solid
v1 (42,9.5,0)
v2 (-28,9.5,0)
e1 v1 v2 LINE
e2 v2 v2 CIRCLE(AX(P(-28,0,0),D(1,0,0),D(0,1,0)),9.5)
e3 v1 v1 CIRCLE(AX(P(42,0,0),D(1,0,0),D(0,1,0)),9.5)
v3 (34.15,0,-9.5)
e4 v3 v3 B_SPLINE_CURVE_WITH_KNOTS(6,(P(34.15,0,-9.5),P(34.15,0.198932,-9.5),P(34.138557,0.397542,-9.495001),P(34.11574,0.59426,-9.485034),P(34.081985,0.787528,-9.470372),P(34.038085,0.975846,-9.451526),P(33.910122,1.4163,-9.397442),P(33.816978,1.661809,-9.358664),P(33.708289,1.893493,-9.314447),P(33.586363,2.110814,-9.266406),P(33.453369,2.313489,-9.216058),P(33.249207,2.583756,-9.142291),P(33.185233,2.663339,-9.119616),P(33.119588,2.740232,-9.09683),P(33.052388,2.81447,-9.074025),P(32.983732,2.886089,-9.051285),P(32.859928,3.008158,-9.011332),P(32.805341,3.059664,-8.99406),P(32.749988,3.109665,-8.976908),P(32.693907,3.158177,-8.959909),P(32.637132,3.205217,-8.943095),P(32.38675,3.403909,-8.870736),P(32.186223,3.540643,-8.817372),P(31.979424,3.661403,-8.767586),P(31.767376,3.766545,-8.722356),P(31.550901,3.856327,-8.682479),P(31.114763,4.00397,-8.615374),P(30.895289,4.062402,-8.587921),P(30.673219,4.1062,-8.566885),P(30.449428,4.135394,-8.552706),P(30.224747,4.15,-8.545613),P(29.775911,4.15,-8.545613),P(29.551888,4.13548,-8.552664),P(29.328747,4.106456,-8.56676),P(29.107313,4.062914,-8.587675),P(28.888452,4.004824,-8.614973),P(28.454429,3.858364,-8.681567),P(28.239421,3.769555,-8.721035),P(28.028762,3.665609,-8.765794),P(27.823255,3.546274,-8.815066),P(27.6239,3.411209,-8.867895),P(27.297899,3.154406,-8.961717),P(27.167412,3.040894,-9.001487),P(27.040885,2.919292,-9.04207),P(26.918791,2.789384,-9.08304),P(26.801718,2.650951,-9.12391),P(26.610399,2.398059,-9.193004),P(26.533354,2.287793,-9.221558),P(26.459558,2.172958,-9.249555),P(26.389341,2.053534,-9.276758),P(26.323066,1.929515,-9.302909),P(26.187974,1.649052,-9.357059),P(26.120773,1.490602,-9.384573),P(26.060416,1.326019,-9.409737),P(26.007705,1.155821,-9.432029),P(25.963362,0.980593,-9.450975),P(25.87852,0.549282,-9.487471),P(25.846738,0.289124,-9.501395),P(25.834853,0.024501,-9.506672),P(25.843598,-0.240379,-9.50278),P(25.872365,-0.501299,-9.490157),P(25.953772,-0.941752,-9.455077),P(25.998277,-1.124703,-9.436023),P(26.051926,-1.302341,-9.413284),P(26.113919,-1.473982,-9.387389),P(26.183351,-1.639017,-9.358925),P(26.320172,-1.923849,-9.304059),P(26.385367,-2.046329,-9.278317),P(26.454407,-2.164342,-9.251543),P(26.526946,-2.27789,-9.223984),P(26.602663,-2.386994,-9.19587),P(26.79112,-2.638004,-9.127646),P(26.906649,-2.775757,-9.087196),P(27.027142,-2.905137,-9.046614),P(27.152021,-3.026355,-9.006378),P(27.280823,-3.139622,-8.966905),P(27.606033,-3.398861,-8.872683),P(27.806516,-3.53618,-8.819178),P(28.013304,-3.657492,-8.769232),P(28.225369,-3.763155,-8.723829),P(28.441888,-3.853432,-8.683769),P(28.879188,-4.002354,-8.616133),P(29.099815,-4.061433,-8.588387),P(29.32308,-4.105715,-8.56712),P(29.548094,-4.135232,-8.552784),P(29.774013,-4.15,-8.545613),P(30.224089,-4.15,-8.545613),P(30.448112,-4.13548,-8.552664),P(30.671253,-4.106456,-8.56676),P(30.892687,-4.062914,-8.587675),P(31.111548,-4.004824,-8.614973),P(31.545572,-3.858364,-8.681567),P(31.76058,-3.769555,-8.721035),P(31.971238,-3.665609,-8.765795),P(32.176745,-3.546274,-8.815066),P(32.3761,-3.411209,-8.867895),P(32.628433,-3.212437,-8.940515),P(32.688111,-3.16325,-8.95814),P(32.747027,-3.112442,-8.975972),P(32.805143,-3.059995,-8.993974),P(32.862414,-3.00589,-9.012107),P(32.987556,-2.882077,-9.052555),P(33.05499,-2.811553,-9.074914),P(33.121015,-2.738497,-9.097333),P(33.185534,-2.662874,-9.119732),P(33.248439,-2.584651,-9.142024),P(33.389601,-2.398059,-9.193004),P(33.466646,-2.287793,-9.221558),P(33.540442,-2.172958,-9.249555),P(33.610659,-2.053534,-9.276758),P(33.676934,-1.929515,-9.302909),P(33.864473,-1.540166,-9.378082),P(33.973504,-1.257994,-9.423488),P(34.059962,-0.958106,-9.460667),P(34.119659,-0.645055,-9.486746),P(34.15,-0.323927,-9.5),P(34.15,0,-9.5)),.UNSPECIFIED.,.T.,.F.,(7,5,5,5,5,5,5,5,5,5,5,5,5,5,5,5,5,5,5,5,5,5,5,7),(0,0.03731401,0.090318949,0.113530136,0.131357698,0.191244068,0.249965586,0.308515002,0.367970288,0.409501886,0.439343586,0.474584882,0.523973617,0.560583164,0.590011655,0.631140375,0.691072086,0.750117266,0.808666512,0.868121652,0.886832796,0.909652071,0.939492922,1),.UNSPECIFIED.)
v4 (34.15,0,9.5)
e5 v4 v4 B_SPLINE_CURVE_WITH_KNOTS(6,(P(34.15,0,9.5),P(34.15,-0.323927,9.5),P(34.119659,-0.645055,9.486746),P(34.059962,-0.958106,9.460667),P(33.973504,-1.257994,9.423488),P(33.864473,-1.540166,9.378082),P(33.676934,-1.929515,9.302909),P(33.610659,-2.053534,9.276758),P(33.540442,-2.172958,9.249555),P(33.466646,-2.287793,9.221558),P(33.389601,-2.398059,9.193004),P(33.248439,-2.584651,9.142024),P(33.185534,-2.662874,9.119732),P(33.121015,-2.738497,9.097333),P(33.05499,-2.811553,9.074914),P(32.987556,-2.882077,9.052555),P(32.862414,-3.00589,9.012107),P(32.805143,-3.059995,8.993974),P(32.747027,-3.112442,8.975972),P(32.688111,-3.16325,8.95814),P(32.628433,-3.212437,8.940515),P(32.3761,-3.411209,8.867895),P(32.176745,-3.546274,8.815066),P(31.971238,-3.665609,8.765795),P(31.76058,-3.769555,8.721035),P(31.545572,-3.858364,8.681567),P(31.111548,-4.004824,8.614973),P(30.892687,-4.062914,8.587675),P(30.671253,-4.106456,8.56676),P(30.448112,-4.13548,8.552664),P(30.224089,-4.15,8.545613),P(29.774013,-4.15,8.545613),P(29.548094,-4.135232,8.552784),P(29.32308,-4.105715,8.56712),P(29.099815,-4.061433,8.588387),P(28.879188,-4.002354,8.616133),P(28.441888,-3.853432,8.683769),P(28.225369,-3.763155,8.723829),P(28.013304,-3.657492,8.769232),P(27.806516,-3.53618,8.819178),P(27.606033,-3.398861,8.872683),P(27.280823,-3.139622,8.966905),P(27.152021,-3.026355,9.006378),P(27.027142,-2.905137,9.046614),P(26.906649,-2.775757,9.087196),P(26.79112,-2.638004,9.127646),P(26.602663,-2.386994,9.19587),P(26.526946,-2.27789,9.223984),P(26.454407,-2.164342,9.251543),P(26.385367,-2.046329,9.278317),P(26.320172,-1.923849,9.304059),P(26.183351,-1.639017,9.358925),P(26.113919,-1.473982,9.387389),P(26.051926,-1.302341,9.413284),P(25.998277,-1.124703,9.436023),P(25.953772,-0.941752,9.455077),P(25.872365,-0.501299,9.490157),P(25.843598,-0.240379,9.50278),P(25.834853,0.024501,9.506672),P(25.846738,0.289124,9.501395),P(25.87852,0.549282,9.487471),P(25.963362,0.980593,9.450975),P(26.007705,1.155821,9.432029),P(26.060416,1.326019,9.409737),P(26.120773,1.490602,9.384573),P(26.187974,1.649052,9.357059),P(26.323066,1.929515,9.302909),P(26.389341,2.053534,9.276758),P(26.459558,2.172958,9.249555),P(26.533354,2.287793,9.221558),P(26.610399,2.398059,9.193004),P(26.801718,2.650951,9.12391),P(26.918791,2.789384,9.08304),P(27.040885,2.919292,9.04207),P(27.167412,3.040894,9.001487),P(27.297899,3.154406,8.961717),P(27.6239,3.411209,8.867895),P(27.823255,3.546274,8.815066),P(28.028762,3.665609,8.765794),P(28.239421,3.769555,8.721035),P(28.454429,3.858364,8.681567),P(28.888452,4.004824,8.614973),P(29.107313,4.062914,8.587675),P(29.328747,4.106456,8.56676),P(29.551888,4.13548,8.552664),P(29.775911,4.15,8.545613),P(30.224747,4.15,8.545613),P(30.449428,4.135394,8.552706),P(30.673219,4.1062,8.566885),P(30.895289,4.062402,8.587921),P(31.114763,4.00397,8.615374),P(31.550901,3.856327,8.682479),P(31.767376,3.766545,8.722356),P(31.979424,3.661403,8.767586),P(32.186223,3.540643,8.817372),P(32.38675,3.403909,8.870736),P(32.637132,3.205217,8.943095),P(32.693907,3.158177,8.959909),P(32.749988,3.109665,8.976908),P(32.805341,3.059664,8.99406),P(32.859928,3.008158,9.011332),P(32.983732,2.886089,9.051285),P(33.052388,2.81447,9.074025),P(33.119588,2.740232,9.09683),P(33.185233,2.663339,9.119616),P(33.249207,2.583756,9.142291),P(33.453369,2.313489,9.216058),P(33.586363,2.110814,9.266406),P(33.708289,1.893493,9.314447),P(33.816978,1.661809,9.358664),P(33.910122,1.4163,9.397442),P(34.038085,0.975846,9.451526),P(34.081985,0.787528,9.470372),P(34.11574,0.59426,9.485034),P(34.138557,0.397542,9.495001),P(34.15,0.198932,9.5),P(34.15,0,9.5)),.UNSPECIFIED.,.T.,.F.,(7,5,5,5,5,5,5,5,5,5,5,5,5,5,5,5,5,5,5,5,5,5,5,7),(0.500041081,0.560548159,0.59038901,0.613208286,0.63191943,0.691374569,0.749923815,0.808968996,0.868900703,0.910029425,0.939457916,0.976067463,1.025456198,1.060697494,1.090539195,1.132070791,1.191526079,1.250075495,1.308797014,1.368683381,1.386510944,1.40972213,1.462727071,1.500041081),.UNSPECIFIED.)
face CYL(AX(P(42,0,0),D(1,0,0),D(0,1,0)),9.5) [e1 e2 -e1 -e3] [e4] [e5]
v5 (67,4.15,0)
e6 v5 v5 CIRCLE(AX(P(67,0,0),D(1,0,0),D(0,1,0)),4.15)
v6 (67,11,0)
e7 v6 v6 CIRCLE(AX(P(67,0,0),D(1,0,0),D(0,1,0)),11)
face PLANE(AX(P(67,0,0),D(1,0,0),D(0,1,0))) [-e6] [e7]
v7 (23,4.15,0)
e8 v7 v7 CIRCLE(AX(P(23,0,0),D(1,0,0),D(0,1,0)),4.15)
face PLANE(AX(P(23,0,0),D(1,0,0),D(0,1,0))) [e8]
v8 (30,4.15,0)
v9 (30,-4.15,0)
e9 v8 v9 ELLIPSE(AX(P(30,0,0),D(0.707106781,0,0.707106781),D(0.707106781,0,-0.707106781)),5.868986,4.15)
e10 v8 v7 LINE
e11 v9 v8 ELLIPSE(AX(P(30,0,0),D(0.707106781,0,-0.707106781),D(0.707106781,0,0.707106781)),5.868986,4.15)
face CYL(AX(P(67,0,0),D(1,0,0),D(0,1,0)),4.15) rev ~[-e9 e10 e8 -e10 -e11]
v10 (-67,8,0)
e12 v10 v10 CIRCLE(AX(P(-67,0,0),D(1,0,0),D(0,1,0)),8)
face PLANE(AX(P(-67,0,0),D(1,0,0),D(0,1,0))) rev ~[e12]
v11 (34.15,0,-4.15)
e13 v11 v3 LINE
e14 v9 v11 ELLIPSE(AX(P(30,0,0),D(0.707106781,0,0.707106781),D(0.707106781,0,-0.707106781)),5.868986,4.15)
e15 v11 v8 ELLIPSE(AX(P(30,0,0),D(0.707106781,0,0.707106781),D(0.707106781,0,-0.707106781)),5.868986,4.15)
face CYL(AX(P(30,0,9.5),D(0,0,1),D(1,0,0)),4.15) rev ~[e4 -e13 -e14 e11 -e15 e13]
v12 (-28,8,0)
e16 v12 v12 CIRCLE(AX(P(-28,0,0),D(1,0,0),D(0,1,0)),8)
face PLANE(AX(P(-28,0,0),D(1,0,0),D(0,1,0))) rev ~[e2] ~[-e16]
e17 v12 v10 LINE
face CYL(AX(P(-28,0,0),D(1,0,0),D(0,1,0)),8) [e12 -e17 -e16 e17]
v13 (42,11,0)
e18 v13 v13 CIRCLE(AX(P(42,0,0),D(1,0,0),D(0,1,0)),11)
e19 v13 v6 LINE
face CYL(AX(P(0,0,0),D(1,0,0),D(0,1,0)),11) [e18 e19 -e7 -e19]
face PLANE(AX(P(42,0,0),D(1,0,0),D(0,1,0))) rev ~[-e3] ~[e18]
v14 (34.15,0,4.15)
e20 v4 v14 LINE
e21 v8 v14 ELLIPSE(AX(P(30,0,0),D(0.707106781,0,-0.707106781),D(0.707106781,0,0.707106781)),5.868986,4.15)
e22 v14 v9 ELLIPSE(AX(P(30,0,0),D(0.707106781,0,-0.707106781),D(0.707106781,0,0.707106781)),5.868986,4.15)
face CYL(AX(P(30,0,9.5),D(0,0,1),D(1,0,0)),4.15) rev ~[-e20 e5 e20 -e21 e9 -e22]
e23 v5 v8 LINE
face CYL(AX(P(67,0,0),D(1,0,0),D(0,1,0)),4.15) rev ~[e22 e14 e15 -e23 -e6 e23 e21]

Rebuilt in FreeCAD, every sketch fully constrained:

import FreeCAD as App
import Part
import Sketcher
Q = App.Units.Quantity

doc = App.newDocument("Part")
body = doc.addObject("PartDesign::Body", "Body")

# Sketch on YZ plane
sketch1 = body.newObject("Sketcher::SketchObject", "Sketch")
sketch1.AttachmentSupport = (doc.getObject("YZ_Plane"), [""])
sketch1.MapMode = "FlatFace"
sketch1.addGeometry(Part.Circle(App.Vector(0, 0, 0), App.Vector(0, 0, 1), 11), False)
sketch1.addConstraint(Sketcher.Constraint("Coincident", 0, 3, -1, 1))
sketch1.addConstraint(Sketcher.Constraint("Diameter", 0, Q("22 mm")))
pad1 = body.newObject("PartDesign::Pad", "Pad")
pad1.Profile = sketch1
pad1.Length = 134
pad1.Midplane = True

# Sketch on YZ plane
sketch2 = body.newObject("Sketcher::SketchObject", "Sketch001")
sketch2.AttachmentSupport = (doc.getObject("YZ_Plane"), [""])
sketch2.MapMode = "FlatFace"
sketch2.AttachmentOffset = App.Placement(App.Vector(0, 0, 42), App.Rotation())
sketch2.addGeometry(Part.Circle(App.Vector(0, 0, 0), App.Vector(0, 0, 1), 11), False)
sketch2.addGeometry(Part.Circle(App.Vector(0, 0, 0), App.Vector(0, 0, 1), 10), False)
sketch2.addConstraint(Sketcher.Constraint("Coincident", 0, 3, -1, 1))
sketch2.addConstraint(Sketcher.Constraint("Coincident", 1, 3, -1, 1))
sketch2.addConstraint(Sketcher.Constraint("Diameter", 0, Q("22 mm")))
sketch2.addConstraint(Sketcher.Constraint("Diameter", 1, Q("19 mm")))
pocket1 = body.newObject("PartDesign::Pocket", "Pocket")
pocket1.Profile = sketch2
pocket1.Length = 70

# Sketch on YZ plane
sketch3 = body.newObject("Sketcher::SketchObject", "Sketch002")
sketch3.AttachmentSupport = (doc.getObject("YZ_Plane"), [""])
sketch3.MapMode = "FlatFace"
sketch3.AttachmentOffset = App.Placement(App.Vector(0, 0, -28), App.Rotation())
sketch3.addGeometry(Part.Circle(App.Vector(0, 0, 0), App.Vector(0, 0, 1), 11), False)
sketch3.addGeometry(Part.Circle(App.Vector(0, 0, 0), App.Vector(0, 0, 1), 8), False)
sketch3.addConstraint(Sketcher.Constraint("Coincident", 0, 3, -1, 1))
sketch3.addConstraint(Sketcher.Constraint("Coincident", 1, 3, -1, 1))
sketch3.addConstraint(Sketcher.Constraint("Diameter", 0, Q("22 mm")))
sketch3.addConstraint(Sketcher.Constraint("Diameter", 1, Q("16 mm")))
pocket2 = body.newObject("PartDesign::Pocket", "Pocket001")
pocket2.Profile = sketch3
pocket2.Type = "ThroughAll"

# Sketch on YZ plane
sketch4 = body.newObject("Sketcher::SketchObject", "Sketch003")
sketch4.AttachmentSupport = (doc.getObject("YZ_Plane"), [""])
sketch4.MapMode = "FlatFace"
sketch4.AttachmentOffset = App.Placement(App.Vector(0, 0, 67), App.Rotation())
sketch4.addGeometry(Part.Circle(App.Vector(0, 0, 0), App.Vector(0, 0, 1), 4.2), False)
sketch4.addConstraint(Sketcher.Constraint("Coincident", 0, 3, -1, 1))
sketch4.addConstraint(Sketcher.Constraint("Diameter", 0, Q("8.3 mm")))
pocket3 = body.newObject("PartDesign::Pocket", "Pocket002")
pocket3.Profile = sketch4
pocket3.Length = 44

# Sketch on XY plane
sketch5 = body.newObject("Sketcher::SketchObject", "Sketch004")
sketch5.AttachmentSupport = (doc.getObject("XY_Plane"), [""])
sketch5.MapMode = "FlatFace"
sketch5.AttachmentOffset = App.Placement(App.Vector(0, 0, 9.5), App.Rotation())
sketch5.addGeometry(Part.Circle(App.Vector(30, 0, 0), App.Vector(0, 0, 1), 4.2), False)
sketch5.addConstraint(Sketcher.Constraint("PointOnObject", 0, 3, -1))
sketch5.addConstraint(Sketcher.Constraint("Diameter", 0, Q("8.3 mm")))
sketch5.addConstraint(Sketcher.Constraint("DistanceX", -1, 1, 0, 3, Q("30 mm")))
pocket4 = body.newObject("PartDesign::Pocket", "Pocket003")
pocket4.Profile = sketch5
pocket4.Type = "ThroughAll"

doc.recompute()
